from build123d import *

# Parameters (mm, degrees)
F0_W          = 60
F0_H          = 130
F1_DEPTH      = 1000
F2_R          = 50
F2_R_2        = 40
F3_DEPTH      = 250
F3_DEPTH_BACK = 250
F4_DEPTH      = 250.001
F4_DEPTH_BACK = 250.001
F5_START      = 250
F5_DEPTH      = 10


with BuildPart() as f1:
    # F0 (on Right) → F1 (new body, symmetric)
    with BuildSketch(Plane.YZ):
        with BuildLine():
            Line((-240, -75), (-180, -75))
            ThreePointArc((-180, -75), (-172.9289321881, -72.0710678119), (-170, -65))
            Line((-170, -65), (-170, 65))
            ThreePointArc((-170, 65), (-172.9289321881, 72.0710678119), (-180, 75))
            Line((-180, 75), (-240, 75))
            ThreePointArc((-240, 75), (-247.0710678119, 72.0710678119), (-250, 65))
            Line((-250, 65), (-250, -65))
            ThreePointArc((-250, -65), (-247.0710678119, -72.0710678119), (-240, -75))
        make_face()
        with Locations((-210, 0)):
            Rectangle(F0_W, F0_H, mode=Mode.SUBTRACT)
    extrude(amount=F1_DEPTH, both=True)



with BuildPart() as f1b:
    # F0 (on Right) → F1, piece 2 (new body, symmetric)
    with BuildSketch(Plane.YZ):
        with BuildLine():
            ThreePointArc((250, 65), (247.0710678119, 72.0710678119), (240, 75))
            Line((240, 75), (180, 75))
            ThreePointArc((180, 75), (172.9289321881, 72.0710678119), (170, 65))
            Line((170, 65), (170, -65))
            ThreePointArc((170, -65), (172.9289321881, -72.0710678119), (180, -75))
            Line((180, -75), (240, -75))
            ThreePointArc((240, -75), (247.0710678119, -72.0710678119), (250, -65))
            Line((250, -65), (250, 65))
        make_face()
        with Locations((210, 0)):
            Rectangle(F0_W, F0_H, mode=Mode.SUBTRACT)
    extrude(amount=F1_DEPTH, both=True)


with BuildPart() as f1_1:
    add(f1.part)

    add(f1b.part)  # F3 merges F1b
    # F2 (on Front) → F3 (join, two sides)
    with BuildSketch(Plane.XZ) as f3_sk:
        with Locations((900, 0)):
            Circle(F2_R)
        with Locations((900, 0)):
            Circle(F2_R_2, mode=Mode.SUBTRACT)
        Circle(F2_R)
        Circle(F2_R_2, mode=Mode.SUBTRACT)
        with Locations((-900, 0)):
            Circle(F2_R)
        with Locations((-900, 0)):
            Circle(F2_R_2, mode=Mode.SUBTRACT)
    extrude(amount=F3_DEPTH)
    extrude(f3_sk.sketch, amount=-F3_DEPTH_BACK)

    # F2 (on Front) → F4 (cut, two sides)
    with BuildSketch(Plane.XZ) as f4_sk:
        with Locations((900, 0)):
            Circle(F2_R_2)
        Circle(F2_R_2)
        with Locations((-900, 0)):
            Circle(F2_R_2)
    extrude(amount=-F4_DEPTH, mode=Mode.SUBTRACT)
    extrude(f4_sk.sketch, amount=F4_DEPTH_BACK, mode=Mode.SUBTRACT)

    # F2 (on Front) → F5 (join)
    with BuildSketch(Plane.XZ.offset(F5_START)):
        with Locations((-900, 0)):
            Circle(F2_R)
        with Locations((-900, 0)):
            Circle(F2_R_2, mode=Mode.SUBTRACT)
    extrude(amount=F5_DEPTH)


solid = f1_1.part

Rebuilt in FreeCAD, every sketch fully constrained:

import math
import FreeCAD as App
import Part
import Sketcher
Q = App.Units.Quantity

doc = App.newDocument("Part")
params = doc.addObject("Spreadsheet::Sheet", "Params")
for row, (alias, value) in enumerate([
    ("sketch1_radius", "10 mm"),
    ("sketch1_width", "60 mm"),
    ("sketch1_height", "130 mm"),
    ("pad1_length", "2000 mm"),
    ("sketch2_radius", "10 mm"),
    ("sketch2_width", "60 mm"),
    ("sketch2_height", "130 mm"),
    ("pad2_length", "2000 mm"),
    ("sketch3_diameter", "100 mm"),
    ("sketch3_diameter2", "80 mm"),
    ("pad3_length", "250 mm"),
    ("pad3_length2", "250 mm"),
    ("sketch4_diameter", "80 mm"),
    ("sketch5_diameter", "100 mm"),
    ("sketch5_diameter2", "80 mm"),
    ("pad4_length", "10 mm"),
], start=1):
    params.set(f"A{row}", alias)
    params.set(f"B{row}", "=" + value)
    params.setAlias(f"B{row}", alias)

body = doc.addObject("PartDesign::Body", "Body")

# Sketch on YZ plane
sketch1 = doc.addObject("Sketcher::SketchObject", "Sketch")
body.addObject(sketch1)
sketch1.AttachmentSupport = (doc.YZ_Plane, [""])
sketch1.MapMode = "FlatFace"
sketch1.addGeometry([
    Part.LineSegment(App.Vector(-240, -75, 0), App.Vector(-180, -75, 0)),  # 0
    Part.ArcOfCircle(Part.Circle(App.Vector(-180, -65, 0), App.Vector(0, 0, 1), 10), math.radians(-90), math.radians(0)),  # 1
    Part.LineSegment(App.Vector(-170, -65, 0), App.Vector(-170, 65, 0)),  # 2
    Part.ArcOfCircle(Part.Circle(App.Vector(-180, 65, 0), App.Vector(0, 0, 1), 10), math.radians(0), math.radians(90)),  # 3
    Part.LineSegment(App.Vector(-180, 75, 0), App.Vector(-240, 75, 0)),  # 4
    Part.ArcOfCircle(Part.Circle(App.Vector(-240, 65, 0), App.Vector(0, 0, 1), 10), math.radians(90), math.radians(180)),  # 5
    Part.LineSegment(App.Vector(-250, 65, 0), App.Vector(-250, -65, 0)),  # 6
    Part.ArcOfCircle(Part.Circle(App.Vector(-240, -65, 0), App.Vector(0, 0, 1), 10), math.radians(180), math.radians(270)),  # 7
    Part.LineSegment(App.Vector(-180, -65, 0), App.Vector(-240, -65, 0)),  # 8
    Part.LineSegment(App.Vector(-240, -65, 0), App.Vector(-240, 65, 0)),  # 9
    Part.LineSegment(App.Vector(-240, 65, 0), App.Vector(-180, 65, 0)),  # 10
    Part.LineSegment(App.Vector(-180, 65, 0), App.Vector(-180, -65, 0)),  # 11
], False)
sketch1.addConstraint([
    Sketcher.Constraint("Tangent", 0, 2, 1, 1),
    Sketcher.Constraint("Tangent", 1, 2, 2, 1),
    Sketcher.Constraint("Tangent", 2, 2, 3, 1),
    Sketcher.Constraint("Tangent", 3, 2, 4, 1),
    Sketcher.Constraint("Tangent", 4, 2, 5, 1),
    Sketcher.Constraint("Tangent", 5, 2, 6, 1),
    Sketcher.Constraint("Tangent", 6, 2, 7, 1),
    Sketcher.Constraint("Tangent", 7, 2, 0, 1),
    Sketcher.Constraint("Coincident", 8, 2, 9, 1),
    Sketcher.Constraint("Coincident", 9, 2, 10, 1),
    Sketcher.Constraint("Coincident", 10, 2, 11, 1),
    Sketcher.Constraint("Coincident", 11, 2, 8, 1),
    Sketcher.Constraint("Horizontal", 0),
    Sketcher.Constraint("Vertical", 2),
    Sketcher.Constraint("Horizontal", 4),
    Sketcher.Constraint("Vertical", 6),
    Sketcher.Constraint("Horizontal", 8),
    Sketcher.Constraint("Vertical", 9),
    Sketcher.Constraint("Horizontal", 10),
    Sketcher.Constraint("Vertical", 11),
    Sketcher.Constraint("Coincident", 8, 2, 7, 3),
    Sketcher.Constraint("Coincident", 9, 2, 5, 3),
    Sketcher.Constraint("Coincident", 10, 2, 3, 3),
    Sketcher.Constraint("Equal", 1, 3),
    Sketcher.Constraint("Radius", 1, Q("10 mm")),
    Sketcher.Constraint("DistanceX", 0, 1, 0, 2, Q("60 mm")),
    Sketcher.Constraint("DistanceY", 2, 1, 2, 2, Q("130 mm")),
    Sketcher.Constraint("DistanceX", 1, 3, -1, 1, Q("180 mm")),
    Sketcher.Constraint("DistanceY", 1, 3, -1, 1, Q("65 mm")),
])
sketch1.setExpression("Constraints[24]", "Params.sketch1_radius")
sketch1.setExpression("Constraints[25]", "Params.sketch1_width")
sketch1.setExpression("Constraints[26]", "Params.sketch1_height")
pad1 = doc.addObject("PartDesign::Pad", "Pad")
body.addObject(pad1)
pad1.Profile = sketch1
pad1.setExpression("Length", "Params.pad1_length")
pad1.Midplane = True
body2 = doc.addObject("PartDesign::Body", "Body001")

# Sketch on YZ plane
sketch2 = doc.addObject("Sketcher::SketchObject", "Sketch001")
body2.addObject(sketch2)
sketch2.AttachmentSupport = (doc.getObject("YZ_Plane001"), [""])
sketch2.MapMode = "FlatFace"
sketch2.addGeometry([
    Part.ArcOfCircle(Part.Circle(App.Vector(240, 65, 0), App.Vector(0, 0, 1), 10), math.radians(0), math.radians(90)),  # 0
    Part.LineSegment(App.Vector(240, 75, 0), App.Vector(180, 75, 0)),  # 1
    Part.ArcOfCircle(Part.Circle(App.Vector(180, 65, 0), App.Vector(0, 0, 1), 10), math.radians(90), math.radians(180)),  # 2
    Part.LineSegment(App.Vector(170, 65, 0), App.Vector(170, -65, 0)),  # 3
    Part.ArcOfCircle(Part.Circle(App.Vector(180, -65, 0), App.Vector(0, 0, 1), 10), math.radians(180), math.radians(270)),  # 4
    Part.LineSegment(App.Vector(180, -75, 0), App.Vector(240, -75, 0)),  # 5
    Part.ArcOfCircle(Part.Circle(App.Vector(240, -65, 0), App.Vector(0, 0, 1), 10), math.radians(-90), math.radians(0)),  # 6
    Part.LineSegment(App.Vector(250, -65, 0), App.Vector(250, 65, 0)),  # 7
    Part.LineSegment(App.Vector(240, -65, 0), App.Vector(180, -65, 0)),  # 8
    Part.LineSegment(App.Vector(180, -65, 0), App.Vector(180, 65, 0)),  # 9
    Part.LineSegment(App.Vector(180, 65, 0), App.Vector(240, 65, 0)),  # 10
    Part.LineSegment(App.Vector(240, 65, 0), App.Vector(240, -65, 0)),  # 11
], False)
sketch2.addConstraint([
    Sketcher.Constraint("Tangent", 0, 2, 1, 1),
    Sketcher.Constraint("Tangent", 1, 2, 2, 1),
    Sketcher.Constraint("Tangent", 2, 2, 3, 1),
    Sketcher.Constraint("Tangent", 3, 2, 4, 1),
    Sketcher.Constraint("Tangent", 4, 2, 5, 1),
    Sketcher.Constraint("Tangent", 5, 2, 6, 1),
    Sketcher.Constraint("Tangent", 6, 2, 7, 1),
    Sketcher.Constraint("Tangent", 7, 2, 0, 1),
    Sketcher.Constraint("Coincident", 8, 2, 9, 1),
    Sketcher.Constraint("Coincident", 9, 2, 10, 1),
    Sketcher.Constraint("Coincident", 10, 2, 11, 1),
    Sketcher.Constraint("Coincident", 11, 2, 8, 1),
    Sketcher.Constraint("Horizontal", 1),
    Sketcher.Constraint("Vertical", 3),
    Sketcher.Constraint("Horizontal", 5),
    Sketcher.Constraint("Vertical", 7),
    Sketcher.Constraint("Horizontal", 8),
    Sketcher.Constraint("Vertical", 9),
    Sketcher.Constraint("Horizontal", 10),
    Sketcher.Constraint("Vertical", 11),
    Sketcher.Constraint("Coincident", 8, 2, 4, 3),
    Sketcher.Constraint("Coincident", 9, 2, 2, 3),
    Sketcher.Constraint("Coincident", 10, 2, 0, 3),
    Sketcher.Constraint("Equal", 4, 6),
    Sketcher.Constraint("Radius", 0, Q("10 mm")),
    Sketcher.Constraint("DistanceX", 1, 2, 1, 1, Q("60 mm")),
    Sketcher.Constraint("DistanceY", 3, 2, 3, 1, Q("130 mm")),
    Sketcher.Constraint("DistanceX", -1, 1, 0, 3, Q("240 mm")),
    Sketcher.Constraint("DistanceY", -1, 1, 0, 3, Q("65 mm")),
])
sketch2.setExpression("Constraints[24]", "Params.sketch2_radius")
sketch2.setExpression("Constraints[25]", "Params.sketch2_width")
sketch2.setExpression("Constraints[26]", "Params.sketch2_height")
pad2 = doc.addObject("PartDesign::Pad", "Pad001")
body2.addObject(pad2)
pad2.Profile = sketch2
pad2.setExpression("Length", "Params.pad2_length")
pad2.Midplane = True
body.AllowCompound = True
doc.recompute()

boolean = doc.addObject("PartDesign::Boolean", "Boolean")
body.addObject(boolean)
boolean.Type = "Fuse"
boolean.addObjects([body2])

# Sketch on XZ plane
sketch3 = doc.addObject("Sketcher::SketchObject", "Sketch002")
body.addObject(sketch3)
sketch3.AttachmentSupport = (doc.XZ_Plane, [""])
sketch3.MapMode = "FlatFace"
sketch3.addGeometry([
    Part.Circle(App.Vector(900, 0, 0), App.Vector(0, 0, 1), 50),  # 0
    Part.Circle(App.Vector(900, 0, 0), App.Vector(0, 0, 1), 40),  # 1
    Part.Circle(App.Vector(0, 0, 0), App.Vector(0, 0, 1), 50),  # 2
    Part.Circle(App.Vector(0, 0, 0), App.Vector(0, 0, 1), 40),  # 3
    Part.Circle(App.Vector(-900, 0, 0), App.Vector(0, 0, 1), 50),  # 4
    Part.Circle(App.Vector(-900, 0, 0), App.Vector(0, 0, 1), 40),  # 5
], False)
sketch3.addConstraint([
    Sketcher.Constraint("Coincident", 2, 3, -1, 1),
    Sketcher.Constraint("Coincident", 3, 3, -1, 1),
    Sketcher.Constraint("Coincident", 1, 3, 0, 3),
    Sketcher.Constraint("Coincident", 5, 3, 4, 3),
    Sketcher.Constraint("Equal", 0, 2),
    Sketcher.Constraint("Equal", 1, 3),
    Sketcher.Constraint("Equal", 2, 4),
    Sketcher.Constraint("Equal", 3, 5),
    Sketcher.Constraint("Symmetric", 0, 3, 4, 3, -1, 1),
    Sketcher.Constraint("PointOnObject", 0, 3, -1),
    Sketcher.Constraint("Diameter", 0, Q("100 mm")),
    Sketcher.Constraint("Diameter", 1, Q("80 mm")),
    Sketcher.Constraint("DistanceX", -1, 1, 0, 3, Q("900 mm")),
])
sketch3.setExpression("Constraints[10]", "Params.sketch3_diameter")
sketch3.setExpression("Constraints[11]", "Params.sketch3_diameter2")
pad3 = doc.addObject("PartDesign::Pad", "Pad002")
body.addObject(pad3)
pad3.Profile = sketch3
pad3.Type = "TwoLengths"
pad3.setExpression("Length", "Params.pad3_length")
pad3.setExpression("Length2", "Params.pad3_length2")

# Sketch on XZ plane
sketch4 = doc.addObject("Sketcher::SketchObject", "Sketch003")
body.addObject(sketch4)
sketch4.AttachmentSupport = (doc.XZ_Plane, [""])
sketch4.MapMode = "FlatFace"
sketch4.addGeometry([
    Part.Circle(App.Vector(900, 0, 0), App.Vector(0, 0, 1), 40),
    Part.Circle(App.Vector(0, 0, 0), App.Vector(0, 0, 1), 40),
    Part.Circle(App.Vector(-900, 0, 0), App.Vector(0, 0, 1), 40),
], False)
sketch4.addConstraint([
    Sketcher.Constraint("Coincident", 1, 3, -1, 1),
    Sketcher.Constraint("Equal", 0, 1),
    Sketcher.Constraint("Equal", 1, 2),
    Sketcher.Constraint("Symmetric", 0, 3, 2, 3, -1, 1),
    Sketcher.Constraint("PointOnObject", 0, 3, -1),
    Sketcher.Constraint("Diameter", 0, Q("80 mm")),
    Sketcher.Constraint("DistanceX", -1, 1, 0, 3, Q("900 mm")),
])
sketch4.setExpression("Constraints[5]", "Params.sketch4_diameter")
pocket1 = doc.addObject("PartDesign::Pocket", "Pocket")
body.addObject(pocket1)
pocket1.Profile = sketch4
pocket1.Type = "ThroughAll"
pocket1.Midplane = True

# Sketch on XZ plane
sketch5 = doc.addObject("Sketcher::SketchObject", "Sketch004")
body.addObject(sketch5)
sketch5.AttachmentSupport = (doc.XZ_Plane, [""])
sketch5.MapMode = "FlatFace"
sketch5.AttachmentOffset = App.Placement(App.Vector(0, 0, 250), App.Rotation())
sketch5.addGeometry([
    Part.Circle(App.Vector(-900, 0, 0), App.Vector(0, 0, 1), 50),
    Part.Circle(App.Vector(-900, 0, 0), App.Vector(0, 0, 1), 40),
], False)
sketch5.addConstraint([
    Sketcher.Constraint("Coincident", 1, 3, 0, 3),
    Sketcher.Constraint("PointOnObject", 0, 3, -1),
    Sketcher.Constraint("Diameter", 0, Q("100 mm")),
    Sketcher.Constraint("Diameter", 1, Q("80 mm")),
    Sketcher.Constraint("DistanceX", 0, 3, -1, 1, Q("900 mm")),
])
sketch5.setExpression("Constraints[2]", "Params.sketch5_diameter")
sketch5.setExpression("Constraints[3]", "Params.sketch5_diameter2")
pad4 = doc.addObject("PartDesign::Pad", "Pad003")
body.addObject(pad4)
pad4.Profile = sketch5
pad4.setExpression("Length", "Params.pad4_length")

doc.recompute()
